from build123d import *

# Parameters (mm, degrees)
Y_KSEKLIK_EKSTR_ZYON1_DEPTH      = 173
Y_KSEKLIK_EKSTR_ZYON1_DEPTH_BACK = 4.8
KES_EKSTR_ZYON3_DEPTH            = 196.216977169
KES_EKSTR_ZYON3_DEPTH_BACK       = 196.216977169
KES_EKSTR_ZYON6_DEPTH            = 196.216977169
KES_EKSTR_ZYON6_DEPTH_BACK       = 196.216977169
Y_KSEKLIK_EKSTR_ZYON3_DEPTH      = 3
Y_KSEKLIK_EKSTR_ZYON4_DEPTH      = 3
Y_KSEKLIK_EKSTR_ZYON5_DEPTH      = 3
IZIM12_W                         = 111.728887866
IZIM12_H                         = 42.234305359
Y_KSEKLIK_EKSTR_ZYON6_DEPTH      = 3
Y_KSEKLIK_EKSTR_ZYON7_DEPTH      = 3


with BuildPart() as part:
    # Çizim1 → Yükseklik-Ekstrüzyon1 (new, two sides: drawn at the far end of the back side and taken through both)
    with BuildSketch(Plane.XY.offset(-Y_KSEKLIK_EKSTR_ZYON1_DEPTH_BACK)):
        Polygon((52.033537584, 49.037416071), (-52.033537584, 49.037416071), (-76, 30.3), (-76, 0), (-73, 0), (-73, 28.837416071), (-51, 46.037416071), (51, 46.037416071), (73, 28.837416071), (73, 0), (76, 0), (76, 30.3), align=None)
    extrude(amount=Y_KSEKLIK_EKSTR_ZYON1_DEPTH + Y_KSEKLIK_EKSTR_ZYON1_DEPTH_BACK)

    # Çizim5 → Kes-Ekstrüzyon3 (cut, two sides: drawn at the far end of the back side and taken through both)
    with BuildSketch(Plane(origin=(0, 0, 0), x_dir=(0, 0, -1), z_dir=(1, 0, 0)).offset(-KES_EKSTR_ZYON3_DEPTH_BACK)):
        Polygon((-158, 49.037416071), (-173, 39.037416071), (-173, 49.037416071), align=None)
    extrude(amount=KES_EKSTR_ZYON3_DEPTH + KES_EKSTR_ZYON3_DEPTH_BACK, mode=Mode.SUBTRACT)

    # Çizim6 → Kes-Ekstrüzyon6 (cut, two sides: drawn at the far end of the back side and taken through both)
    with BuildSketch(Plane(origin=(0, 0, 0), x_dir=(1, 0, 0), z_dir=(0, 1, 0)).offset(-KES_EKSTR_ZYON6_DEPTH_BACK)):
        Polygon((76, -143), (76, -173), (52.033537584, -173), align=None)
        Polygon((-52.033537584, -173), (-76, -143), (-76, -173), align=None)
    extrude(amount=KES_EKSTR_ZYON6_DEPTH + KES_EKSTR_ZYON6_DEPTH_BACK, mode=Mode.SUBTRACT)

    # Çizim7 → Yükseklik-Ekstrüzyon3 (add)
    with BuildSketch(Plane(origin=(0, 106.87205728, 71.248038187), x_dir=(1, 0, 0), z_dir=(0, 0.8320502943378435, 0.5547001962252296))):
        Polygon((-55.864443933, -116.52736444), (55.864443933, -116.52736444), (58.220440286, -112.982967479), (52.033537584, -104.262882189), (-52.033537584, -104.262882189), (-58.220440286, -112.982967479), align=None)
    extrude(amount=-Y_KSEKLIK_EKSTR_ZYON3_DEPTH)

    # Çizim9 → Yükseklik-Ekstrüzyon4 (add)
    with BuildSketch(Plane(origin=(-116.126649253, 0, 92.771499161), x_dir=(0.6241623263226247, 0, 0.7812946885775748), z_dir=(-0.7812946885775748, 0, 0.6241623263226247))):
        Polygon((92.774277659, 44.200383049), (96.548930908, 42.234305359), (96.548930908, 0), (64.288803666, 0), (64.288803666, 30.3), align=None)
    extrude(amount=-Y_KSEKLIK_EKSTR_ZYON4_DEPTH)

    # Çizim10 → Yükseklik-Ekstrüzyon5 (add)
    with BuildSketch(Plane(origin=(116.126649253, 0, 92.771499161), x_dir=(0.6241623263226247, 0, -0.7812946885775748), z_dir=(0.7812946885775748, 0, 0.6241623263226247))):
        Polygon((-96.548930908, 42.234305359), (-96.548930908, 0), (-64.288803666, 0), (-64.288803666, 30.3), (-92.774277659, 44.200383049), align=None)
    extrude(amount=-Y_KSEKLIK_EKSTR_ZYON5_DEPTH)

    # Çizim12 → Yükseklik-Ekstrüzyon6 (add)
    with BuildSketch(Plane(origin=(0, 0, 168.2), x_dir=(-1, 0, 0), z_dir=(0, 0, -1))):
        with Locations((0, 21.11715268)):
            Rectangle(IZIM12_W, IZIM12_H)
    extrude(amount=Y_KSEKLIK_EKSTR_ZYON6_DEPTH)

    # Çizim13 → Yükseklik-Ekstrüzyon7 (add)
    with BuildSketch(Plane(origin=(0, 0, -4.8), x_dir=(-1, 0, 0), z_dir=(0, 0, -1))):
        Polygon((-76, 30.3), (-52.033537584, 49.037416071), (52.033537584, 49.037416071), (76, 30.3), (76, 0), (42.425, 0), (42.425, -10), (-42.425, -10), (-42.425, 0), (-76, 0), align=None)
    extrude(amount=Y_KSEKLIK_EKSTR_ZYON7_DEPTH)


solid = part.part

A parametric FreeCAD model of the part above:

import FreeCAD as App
import Part
import Sketcher
from FreeCAD import Vector

doc = App.newDocument("Part")
body = doc.addObject("PartDesign::Body", "Body")

# Sketch on XY plane
sketch1 = body.newObject("Sketcher::SketchObject", "Sketch")
sketch1.AttachmentSupport = (doc.getObject("XY_Plane"), [""])
sketch1.MapMode = "FlatFace"
sketch1.addGeometry([
    Part.LineSegment(Vector(52.033538, 49.037416, 0), Vector(-52.033538, 49.037416, 0)),  # 0
    Part.LineSegment(Vector(-52.033538, 49.037416, 0), Vector(-76, 30.3, 0)),  # 1
    Part.LineSegment(Vector(-76, 30.3, 0), Vector(-76, 0, 0)),  # 2
    Part.LineSegment(Vector(-76, 0, 0), Vector(-73, 0, 0)),  # 3
    Part.LineSegment(Vector(-73, 0, 0), Vector(-73, 28.837416, 0)),  # 4
    Part.LineSegment(Vector(-73, 28.837416, 0), Vector(-51, 46.037416, 0)),  # 5
    Part.LineSegment(Vector(-51, 46.037416, 0), Vector(51, 46.037416, 0)),  # 6
    Part.LineSegment(Vector(51, 46.037416, 0), Vector(73, 28.837416, 0)),  # 7
    Part.LineSegment(Vector(73, 28.837416, 0), Vector(73, 0, 0)),  # 8
    Part.LineSegment(Vector(73, 0, 0), Vector(76, 0, 0)),  # 9
    Part.LineSegment(Vector(76, 0, 0), Vector(76, 30.3, 0)),  # 10
    Part.LineSegment(Vector(76, 30.3, 0), Vector(52.033538, 49.037416, 0)),  # 11
], False)
sketch1.addConstraint([
    Sketcher.Constraint("Coincident", 0, 2, 1, 1),
    Sketcher.Constraint("Coincident", 1, 2, 2, 1),
    Sketcher.Constraint("Coincident", 2, 2, 3, 1),
    Sketcher.Constraint("Coincident", 3, 2, 4, 1),
    Sketcher.Constraint("Coincident", 4, 2, 5, 1),
    Sketcher.Constraint("Coincident", 5, 2, 6, 1),
    Sketcher.Constraint("Coincident", 6, 2, 7, 1),
    Sketcher.Constraint("Coincident", 7, 2, 8, 1),
    Sketcher.Constraint("Coincident", 8, 2, 9, 1),
    Sketcher.Constraint("Coincident", 9, 2, 10, 1),
    Sketcher.Constraint("Coincident", 10, 2, 11, 1),
    Sketcher.Constraint("Coincident", 11, 2, 0, 1),
    Sketcher.Constraint("Horizontal", 0),
    Sketcher.Constraint("Vertical", 2),
    Sketcher.Constraint("Horizontal", 3),
    Sketcher.Constraint("Vertical", 4),
    Sketcher.Constraint("Horizontal", 6),
    Sketcher.Constraint("Vertical", 8),
    Sketcher.Constraint("Horizontal", 9),
    Sketcher.Constraint("Vertical", 10),
    Sketcher.Constraint("Symmetric", 3, 2, 8, 2, -1, 1),
    Sketcher.Constraint("Symmetric", 2, 2, 9, 2, -2),
    Sketcher.Constraint("Parallel", 1, 5),
    Sketcher.Constraint("Parallel", 7, 11),
    Sketcher.Constraint("Horizontal", 4, 2, 7, 2),
    Sketcher.Constraint("Horizontal", 1, 2, 10, 2),
    Sketcher.Constraint("Equal", 5, 7),
    Sketcher.Constraint("DistanceX", 3, 1, 3, 2, 3.0),
    Sketcher.Constraint("DistanceX", 6, 1, 6, 2, 102.0),
    Sketcher.Constraint("DistanceY", 2, 2, 2, 1, 30.3),
    Sketcher.Constraint("DistanceX", 1, 2, -1, 1, 76.0),
    Sketcher.Constraint("DistanceY", 5, 2, 0, 2, 3.0),
    Sketcher.Constraint("DistanceY", 4, 2, 0, 2, 20.2),
    Sketcher.Constraint("DistanceX", 0, 2, 0, 1, 104.067075),
])
pad1 = body.newObject("PartDesign::Pad", "Pad")
pad1.Profile = sketch1
pad1.Type = "TwoLengths"
pad1.Length = 173
pad1.Length2 = 4.8

# Sketch on YZ plane
sketch2 = body.newObject("Sketcher::SketchObject", "Sketch001")
sketch2.AttachmentSupport = (doc.getObject("YZ_Plane"), [""])
sketch2.MapMode = "FlatFace"
sketch2.addGeometry([
    Part.LineSegment(Vector(39.037416, 173, 0), Vector(49.037416, 158, 0)),
    Part.LineSegment(Vector(49.037416, 158, 0), Vector(49.037416, 173, 0)),
    Part.LineSegment(Vector(49.037416, 173, 0), Vector(39.037416, 173, 0)),
], False)
sketch2.addConstraint([
    Sketcher.Constraint("Coincident", 0, 2, 1, 1),
    Sketcher.Constraint("Coincident", 1, 2, 2, 1),
    Sketcher.Constraint("Coincident", 2, 2, 0, 1),
    Sketcher.Constraint("Vertical", 1),
    Sketcher.Constraint("Horizontal", 2),
    Sketcher.Constraint("DistanceX", 2, 2, 2, 1, 10.0),
    Sketcher.Constraint("DistanceY", 1, 1, 1, 2, 15.0),
    Sketcher.Constraint("DistanceY", -1, 1, 0, 2, 158.0),
    Sketcher.Constraint("DistanceX", -1, 1, 0, 2, 49.037416),
])
pocket1 = body.newObject("PartDesign::Pocket", "Pocket")
pocket1.Profile = sketch2
pocket1.Type = "ThroughAll"
pocket1.Midplane = True

# Sketch on XZ plane
sketch3 = body.newObject("Sketcher::SketchObject", "Sketch002")
sketch3.AttachmentSupport = (doc.getObject("XZ_Plane"), [""])
sketch3.MapMode = "FlatFace"
sketch3.addGeometry([
    Part.LineSegment(Vector(76, 173, 0), Vector(76, 143, 0)),  # 0
    Part.LineSegment(Vector(76, 143, 0), Vector(52.033538, 173, 0)),  # 1
    Part.LineSegment(Vector(52.033538, 173, 0), Vector(76, 173, 0)),  # 2
    Part.LineSegment(Vector(-52.033538, 173, 0), Vector(-76, 143, 0)),  # 3
    Part.LineSegment(Vector(-76, 143, 0), Vector(-76, 173, 0)),  # 4
    Part.LineSegment(Vector(-76, 173, 0), Vector(-52.033538, 173, 0)),  # 5
], False)
sketch3.addConstraint([
    Sketcher.Constraint("Coincident", 0, 2, 1, 1),
    Sketcher.Constraint("Coincident", 1, 2, 2, 1),
    Sketcher.Constraint("Coincident", 2, 2, 0, 1),
    Sketcher.Constraint("Coincident", 3, 2, 4, 1),
    Sketcher.Constraint("Coincident", 4, 2, 5, 1),
    Sketcher.Constraint("Coincident", 5, 2, 3, 1),
    Sketcher.Constraint("Vertical", 0),
    Sketcher.Constraint("Horizontal", 2),
    Sketcher.Constraint("Vertical", 4),
    Sketcher.Constraint("Horizontal", 5),
    Sketcher.Constraint("Symmetric", 0, 2, 3, 2, -2),
    Sketcher.Constraint("Symmetric", 1, 2, 5, 2, -2),
    Sketcher.Constraint("DistanceY", 0, 2, 0, 1, 30.0),
    Sketcher.Constraint("DistanceX", -1, 1, 0, 2, 76.0),
    Sketcher.Constraint("DistanceY", -1, 1, 0, 2, 143.0),
    Sketcher.Constraint("DistanceX", 2, 1, 2, 2, 23.966462),
])
pocket2 = body.newObject("PartDesign::Pocket", "Pocket001")
pocket2.Profile = sketch3
pocket2.Type = "ThroughAll"
pocket2.Midplane = True

# Sketch on an angled plane
sketch4 = body.newObject("Sketcher::SketchObject", "Sketch003")
sketch4.Placement = App.Placement(Vector(0, 106.872057, 71.248038), App.Rotation(Vector(1, 0, 0), Vector(0, 0.554700196, -0.832050294), Vector(0, 0.832050294, 0.554700196), "ZXY"))
sketch4.addGeometry([
    Part.LineSegment(Vector(-55.864444, -116.527364, 0), Vector(55.864444, -116.527364, 0)),  # 0
    Part.LineSegment(Vector(55.864444, -116.527364, 0), Vector(58.22044, -112.982967, 0)),  # 1
    Part.LineSegment(Vector(58.22044, -112.982967, 0), Vector(52.033538, -104.262882, 0)),  # 2
    Part.LineSegment(Vector(52.033538, -104.262882, 0), Vector(-52.033538, -104.262882, 0)),  # 3
    Part.LineSegment(Vector(-52.033538, -104.262882, 0), Vector(-58.22044, -112.982967, 0)),  # 4
    Part.LineSegment(Vector(-58.22044, -112.982967, 0), Vector(-55.864444, -116.527364, 0)),  # 5
], False)
sketch4.addConstraint([
    Sketcher.Constraint("Coincident", 0, 2, 1, 1),
    Sketcher.Constraint("Coincident", 1, 2, 2, 1),
    Sketcher.Constraint("Coincident", 2, 2, 3, 1),
    Sketcher.Constraint("Coincident", 3, 2, 4, 1),
    Sketcher.Constraint("Coincident", 4, 2, 5, 1),
    Sketcher.Constraint("Coincident", 5, 2, 0, 1),
    Sketcher.Constraint("Horizontal", 0),
    Sketcher.Constraint("Horizontal", 3),
    Sketcher.Constraint("Symmetric", 1, 2, 4, 2, -2),
    Sketcher.Constraint("Equal", 2, 4),
    Sketcher.Constraint("Equal", 1, 5),
    Sketcher.Constraint("DistanceX", 0, 1, 0, 2, 111.728888),
    Sketcher.Constraint("DistanceX", 3, 2, 3, 1, 104.067075),
    Sketcher.Constraint("DistanceX", -1, 1, 1, 2, 58.22044),
    Sketcher.Constraint("Distance", 1, 4.255992),
    Sketcher.Constraint("Distance", 2, 10.691943),
    Sketcher.Constraint("DistanceY", 0, 2, -1, 1, 116.527364),
])
pad2 = body.newObject("PartDesign::Pad", "Pad001")
pad2.Profile = sketch4
pad2.Length = 3
pad2.Reversed = True

# Sketch on an angled plane
sketch5 = body.newObject("Sketcher::SketchObject", "Sketch004")
sketch5.Placement = App.Placement(Vector(-116.126649, 0, 92.771499), App.Rotation(Vector(0.624162326, 0, 0.781294689), Vector(0, 1, 0), Vector(-0.781294689, 0, 0.624162326), "ZXY"))
sketch5.addGeometry([
    Part.LineSegment(Vector(96.548931, 42.234305, 0), Vector(92.774278, 44.200383, 0)),  # 0
    Part.LineSegment(Vector(92.774278, 44.200383, 0), Vector(64.288804, 30.3, 0)),  # 1
    Part.LineSegment(Vector(64.288804, 30.3, 0), Vector(64.288804, 0, 0)),  # 2
    Part.LineSegment(Vector(64.288804, 0, 0), Vector(96.548931, 0, 0)),  # 3
    Part.LineSegment(Vector(96.548931, 0, 0), Vector(96.548931, 42.234305, 0)),  # 4
], False)
sketch5.addConstraint([
    Sketcher.Constraint("Coincident", 0, 2, 1, 1),
    Sketcher.Constraint("Coincident", 1, 2, 2, 1),
    Sketcher.Constraint("Coincident", 2, 2, 3, 1),
    Sketcher.Constraint("Coincident", 3, 2, 4, 1),
    Sketcher.Constraint("Coincident", 4, 2, 0, 1),
    Sketcher.Constraint("Vertical", 2),
    Sketcher.Constraint("Horizontal", 3),
    Sketcher.Constraint("Vertical", 4),
    Sketcher.Constraint("PointOnObject", 2, 2, -1),
    Sketcher.Constraint("DistanceY", 2, 2, 2, 1, 30.3),
    Sketcher.Constraint("Distance", 1, 31.696102),
    Sketcher.Constraint("DistanceX", 3, 1, 3, 2, 32.260127),
    Sketcher.Constraint("DistanceY", 4, 1, 4, 2, 42.234305),
    Sketcher.Constraint("DistanceX", -1, 1, 3, 2, 96.548931),
    Sketcher.Constraint("Distance", 0, 4.255992),
])
pad3 = body.newObject("PartDesign::Pad", "Pad002")
pad3.Profile = sketch5
pad3.Length = 3
pad3.Reversed = True

# Sketch on an angled plane
sketch6 = body.newObject("Sketcher::SketchObject", "Sketch005")
sketch6.Placement = App.Placement(Vector(116.126649, 0, 92.771499), App.Rotation(Vector(0.624162326, 0, -0.781294689), Vector(0, 1, 0), Vector(0.781294689, 0, 0.624162326), "ZXY"))
sketch6.addGeometry([
    Part.LineSegment(Vector(-96.548931, 42.234305, 0), Vector(-96.548931, 0, 0)),  # 0
    Part.LineSegment(Vector(-96.548931, 0, 0), Vector(-64.288804, 0, 0)),  # 1
    Part.LineSegment(Vector(-64.288804, 0, 0), Vector(-64.288804, 30.3, 0)),  # 2
    Part.LineSegment(Vector(-64.288804, 30.3, 0), Vector(-92.774278, 44.200383, 0)),  # 3
    Part.LineSegment(Vector(-92.774278, 44.200383, 0), Vector(-96.548931, 42.234305, 0)),  # 4
], False)
sketch6.addConstraint([
    Sketcher.Constraint("Coincident", 0, 2, 1, 1),
    Sketcher.Constraint("Coincident", 1, 2, 2, 1),
    Sketcher.Constraint("Coincident", 2, 2, 3, 1),
    Sketcher.Constraint("Coincident", 3, 2, 4, 1),
    Sketcher.Constraint("Coincident", 4, 2, 0, 1),
    Sketcher.Constraint("Vertical", 0),
    Sketcher.Constraint("Horizontal", 1),
    Sketcher.Constraint("Vertical", 2),
    Sketcher.Constraint("PointOnObject", 0, 2, -1),
    Sketcher.Constraint("DistanceY", 2, 1, 2, 2, 30.3),
    Sketcher.Constraint("Distance", 3, 31.696102),
    Sketcher.Constraint("DistanceX", 1, 1, 1, 2, 32.260127),
    Sketcher.Constraint("DistanceY", 0, 2, 0, 1, 42.234305),
    Sketcher.Constraint("DistanceX", 0, 2, -1, 1, 96.548931),
    Sketcher.Constraint("Distance", 4, 4.255992),
])
pad4 = body.newObject("PartDesign::Pad", "Pad003")
pad4.Profile = sketch6
pad4.Length = 3
pad4.Reversed = True

# Sketch on XY plane
sketch7 = body.newObject("Sketcher::SketchObject", "Sketch006")
sketch7.AttachmentSupport = (doc.getObject("XY_Plane"), [""])
sketch7.MapMode = "FlatFace"
sketch7.AttachmentOffset = App.Placement(Vector(0, 0, 168.2), App.Rotation())
sketch7.addGeometry([
    Part.LineSegment(Vector(55.864444, 42.234305, 0), Vector(55.864444, 0, 0)),
    Part.LineSegment(Vector(55.864444, 0, 0), Vector(-55.864444, 0, 0)),
    Part.LineSegment(Vector(-55.864444, 0, 0), Vector(-55.864444, 42.234305, 0)),
    Part.LineSegment(Vector(-55.864444, 42.234305, 0), Vector(55.864444, 42.234305, 0)),
], False)
sketch7.addConstraint([
    Sketcher.Constraint("Coincident", 0, 2, 1, 1),
    Sketcher.Constraint("Coincident", 1, 2, 2, 1),
    Sketcher.Constraint("Coincident", 2, 2, 3, 1),
    Sketcher.Constraint("Coincident", 3, 2, 0, 1),
    Sketcher.Constraint("Vertical", 0),
    Sketcher.Constraint("Horizontal", 1),
    Sketcher.Constraint("Vertical", 2),
    Sketcher.Constraint("Horizontal", 3),
    Sketcher.Constraint("Symmetric", 0, 2, 1, 2, -1, 1),
    Sketcher.Constraint("DistanceX", 1, 2, 1, 1, 111.728888),
    Sketcher.Constraint("DistanceY", 0, 2, 0, 1, 42.234305),
])
pad5 = body.newObject("PartDesign::Pad", "Pad004")
pad5.Profile = sketch7
pad5.Length = 3
pad5.Reversed = True

# Sketch on XY plane
sketch8 = body.newObject("Sketcher::SketchObject", "Sketch007")
sketch8.AttachmentSupport = (doc.getObject("XY_Plane"), [""])
sketch8.MapMode = "FlatFace"
sketch8.AttachmentOffset = App.Placement(Vector(0, 0, -4.8), App.Rotation())
sketch8.addGeometry([
    Part.LineSegment(Vector(52.033538, 49.037416, 0), Vector(76, 30.3, 0)),  # 0
    Part.LineSegment(Vector(76, 30.3, 0), Vector(76, 0, 0)),  # 1
    Part.LineSegment(Vector(76, 0, 0), Vector(42.425, 0, 0)),  # 2
    Part.LineSegment(Vector(42.425, 0, 0), Vector(42.425, -10, 0)),  # 3
    Part.LineSegment(Vector(42.425, -10, 0), Vector(-42.425, -10, 0)),  # 4
    Part.LineSegment(Vector(-42.425, -10, 0), Vector(-42.425, 0, 0)),  # 5
    Part.LineSegment(Vector(-42.425, 0, 0), Vector(-76, 0, 0)),  # 6
    Part.LineSegment(Vector(-76, 0, 0), Vector(-76, 30.3, 0)),  # 7
    Part.LineSegment(Vector(-76, 30.3, 0), Vector(-52.033538, 49.037416, 0)),  # 8
    Part.LineSegment(Vector(-52.033538, 49.037416, 0), Vector(52.033538, 49.037416, 0)),  # 9
], False)
sketch8.addConstraint([
    Sketcher.Constraint("Coincident", 0, 2, 1, 1),
    Sketcher.Constraint("Coincident", 1, 2, 2, 1),
    Sketcher.Constraint("Coincident", 2, 2, 3, 1),
    Sketcher.Constraint("Coincident", 3, 2, 4, 1),
    Sketcher.Constraint("Coincident", 4, 2, 5, 1),
    Sketcher.Constraint("Coincident", 5, 2, 6, 1),
    Sketcher.Constraint("Coincident", 6, 2, 7, 1),
    Sketcher.Constraint("Coincident", 7, 2, 8, 1),
    Sketcher.Constraint("Coincident", 8, 2, 9, 1),
    Sketcher.Constraint("Coincident", 9, 2, 0, 1),
    Sketcher.Constraint("Vertical", 1),
    Sketcher.Constraint("Horizontal", 2),
    Sketcher.Constraint("Vertical", 3),
    Sketcher.Constraint("Horizontal", 4),
    Sketcher.Constraint("Vertical", 5),
    Sketcher.Constraint("Horizontal", 6),
    Sketcher.Constraint("Vertical", 7),
    Sketcher.Constraint("Horizontal", 9),
    Sketcher.Constraint("Symmetric", 2, 2, 5, 2, -1, 1),
    Sketcher.Constraint("Symmetric", 1, 2, 6, 2, -2),
    Sketcher.Constraint("Horizontal", 0, 2, 7, 2),
    Sketcher.Constraint("Equal", 0, 8),
    Sketcher.Constraint("DistanceY", 3, 2, 3, 1, 10.0),
    Sketcher.Constraint("DistanceY", 1, 2, 1, 1, 30.3),
    Sketcher.Constraint("DistanceX", -1, 1, 0, 2, 76.0),
    Sketcher.Constraint("DistanceX", 4, 2, 4, 1, 84.85),
    Sketcher.Constraint("DistanceX", 9, 1, 9, 2, 104.067075),
    Sketcher.Constraint("Distance", 0, 30.421737),
])
pad6 = body.newObject("PartDesign::Pad", "Pad005")
pad6.Profile = sketch8
pad6.Length = 3
pad6.Reversed = True

doc.recompute()
